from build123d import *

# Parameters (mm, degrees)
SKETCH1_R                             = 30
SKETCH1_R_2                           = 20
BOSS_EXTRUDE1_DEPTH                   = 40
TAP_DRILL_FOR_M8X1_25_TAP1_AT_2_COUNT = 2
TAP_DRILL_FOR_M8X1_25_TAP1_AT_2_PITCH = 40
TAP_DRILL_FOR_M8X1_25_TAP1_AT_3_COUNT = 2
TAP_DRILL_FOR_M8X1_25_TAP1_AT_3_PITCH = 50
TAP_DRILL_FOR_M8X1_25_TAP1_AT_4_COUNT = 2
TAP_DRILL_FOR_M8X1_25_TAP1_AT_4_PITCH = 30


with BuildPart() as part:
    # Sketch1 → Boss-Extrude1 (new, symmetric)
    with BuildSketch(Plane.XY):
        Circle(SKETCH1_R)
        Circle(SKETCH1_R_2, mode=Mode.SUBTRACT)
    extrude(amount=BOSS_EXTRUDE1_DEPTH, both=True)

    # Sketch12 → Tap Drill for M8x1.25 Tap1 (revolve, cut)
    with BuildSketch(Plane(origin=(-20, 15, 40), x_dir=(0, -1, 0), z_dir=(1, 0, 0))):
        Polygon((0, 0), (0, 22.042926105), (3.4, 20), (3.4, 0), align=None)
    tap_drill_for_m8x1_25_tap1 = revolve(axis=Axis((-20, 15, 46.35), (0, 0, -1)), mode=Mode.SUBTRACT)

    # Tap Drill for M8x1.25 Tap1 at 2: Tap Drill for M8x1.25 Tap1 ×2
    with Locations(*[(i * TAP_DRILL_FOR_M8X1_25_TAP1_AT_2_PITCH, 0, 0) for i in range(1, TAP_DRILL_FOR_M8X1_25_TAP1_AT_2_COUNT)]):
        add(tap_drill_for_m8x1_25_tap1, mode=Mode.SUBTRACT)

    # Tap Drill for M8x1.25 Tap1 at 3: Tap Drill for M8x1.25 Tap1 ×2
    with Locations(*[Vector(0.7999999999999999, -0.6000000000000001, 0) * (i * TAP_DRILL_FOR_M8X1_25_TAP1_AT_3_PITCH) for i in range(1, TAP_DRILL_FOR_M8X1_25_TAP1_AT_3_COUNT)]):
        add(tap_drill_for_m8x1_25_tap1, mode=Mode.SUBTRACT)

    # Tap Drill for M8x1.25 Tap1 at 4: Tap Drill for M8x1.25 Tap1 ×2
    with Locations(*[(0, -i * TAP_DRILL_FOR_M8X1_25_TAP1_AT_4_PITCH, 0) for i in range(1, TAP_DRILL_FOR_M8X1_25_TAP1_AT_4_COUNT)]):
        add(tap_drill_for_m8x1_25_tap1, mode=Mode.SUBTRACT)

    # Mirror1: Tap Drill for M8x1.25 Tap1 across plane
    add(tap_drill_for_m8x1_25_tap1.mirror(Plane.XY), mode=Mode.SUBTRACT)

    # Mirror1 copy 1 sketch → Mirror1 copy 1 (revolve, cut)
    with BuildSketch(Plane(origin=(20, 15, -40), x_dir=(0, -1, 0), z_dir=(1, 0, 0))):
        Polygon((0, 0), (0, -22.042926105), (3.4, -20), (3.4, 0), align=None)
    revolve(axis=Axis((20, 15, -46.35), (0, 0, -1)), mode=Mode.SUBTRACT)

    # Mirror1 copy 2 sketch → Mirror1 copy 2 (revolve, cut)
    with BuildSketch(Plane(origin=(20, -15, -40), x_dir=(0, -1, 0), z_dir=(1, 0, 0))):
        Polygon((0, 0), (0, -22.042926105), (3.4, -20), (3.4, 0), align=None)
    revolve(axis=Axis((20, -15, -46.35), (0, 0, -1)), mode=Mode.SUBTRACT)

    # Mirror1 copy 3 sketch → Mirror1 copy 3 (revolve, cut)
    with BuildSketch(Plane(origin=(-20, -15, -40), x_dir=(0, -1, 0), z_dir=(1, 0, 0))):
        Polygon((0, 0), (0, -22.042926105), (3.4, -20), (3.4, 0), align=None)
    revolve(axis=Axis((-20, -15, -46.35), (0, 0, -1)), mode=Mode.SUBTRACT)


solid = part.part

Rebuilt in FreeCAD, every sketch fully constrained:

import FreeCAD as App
import Part
import Sketcher
from FreeCAD import Vector
Q = App.Units.Quantity

doc = App.newDocument("Part")
body = doc.addObject("PartDesign::Body", "Body")

# Sketch on XY plane
sketch1 = body.newObject("Sketcher::SketchObject", "Sketch")
sketch1.AttachmentSupport = (doc.getObject("XY_Plane"), [""])
sketch1.MapMode = "FlatFace"
sketch1.addGeometry([
    Part.Circle(Vector(0, 0, 0), Vector(0, 0, 1), 30),
    Part.Circle(Vector(0, 0, 0), Vector(0, 0, 1), 20),
], False)
sketch1.addConstraint([
    Sketcher.Constraint("Coincident", 0, 3, -1, 1),
    Sketcher.Constraint("Coincident", 1, 3, -1, 1),
    Sketcher.Constraint("Diameter", 0, Q("60 mm")),
    Sketcher.Constraint("Diameter", 1, Q("40 mm")),
])
pad1 = body.newObject("PartDesign::Pad", "Pad")
pad1.Profile = sketch1
pad1.Length = 80
pad1.Midplane = True

# Sketch on YZ plane
sketch2 = body.newObject("Sketcher::SketchObject", "Sketch001")
sketch2.AttachmentSupport = (doc.getObject("YZ_Plane"), [""])
sketch2.MapMode = "FlatFace"
sketch2.AttachmentOffset = App.Placement(Vector(0, 0, -20), App.Rotation())
sketch2.addGeometry([
    Part.LineSegment(Vector(15, 18, 0), Vector(15, 40, 0)),
    Part.LineSegment(Vector(15, 40, 0), Vector(11.6, 40, 0)),
    Part.LineSegment(Vector(11.6, 40, 0), Vector(11.6, 20, 0)),
    Part.LineSegment(Vector(11.6, 20, 0), Vector(15, 18, 0)),
], False)
sketch2.addGeometry(Part.LineSegment(Vector(15, 40, 0), Vector(15, 18, 0)), True)  # axis
sketch2.addConstraint([
    Sketcher.Constraint("Coincident", 0, 2, 1, 1),
    Sketcher.Constraint("Coincident", 1, 2, 2, 1),
    Sketcher.Constraint("Coincident", 2, 2, 3, 1),
    Sketcher.Constraint("Coincident", 3, 2, 0, 1),
    Sketcher.Constraint("Vertical", 0),
    Sketcher.Constraint("Horizontal", 1),
    Sketcher.Constraint("Vertical", 2),
    Sketcher.Constraint("Vertical", 4),
    Sketcher.Constraint("Coincident", 4, 1, 0, 2),
    Sketcher.Constraint("Equal", 0, 4),
    Sketcher.Constraint("DistanceY", 2, 2, 2, 1, Q("20 mm")),
    Sketcher.Constraint("Angle", 3, Q("-31 deg")),
    Sketcher.Constraint("DistanceX", 1, 2, 1, 1, Q("3.4 mm")),
    Sketcher.Constraint("DistanceX", -1, 1, 0, 2, Q("15 mm")),
    Sketcher.Constraint("DistanceY", -1, 1, 0, 2, Q("40 mm")),
])
groove = body.newObject("PartDesign::Groove", "Groove")
groove.Profile = sketch2
groove.ReferenceAxis = (sketch2, ["Axis0"])
groove.Angle = 360
doc.recompute()

linearpattern = body.newObject("PartDesign::LinearPattern", "LinearPattern")
linearpattern.Originals = [groove]
linearpattern.Direction = (doc.getObject("X_Axis"), [""])
linearpattern.Mode = "offset"
linearpattern.Offset = 40
linearpattern.Occurrences = 2
body.Tip = linearpattern
doc.recompute()

datumline = body.newObject("PartDesign::Line", "DatumLine")
datumline.Placement = App.Placement(Vector(0, 0, 0), App.Rotation(Vector(0, 0, 1), Vector(0.8, -0.6, 0)))
linearpattern2 = body.newObject("PartDesign::LinearPattern", "LinearPattern001")
linearpattern2.Originals = [groove]
linearpattern2.Direction = (datumline, [""])
linearpattern2.Mode = "offset"
linearpattern2.Offset = 50
linearpattern2.Occurrences = 2
body.Tip = linearpattern2
doc.recompute()

linearpattern3 = body.newObject("PartDesign::LinearPattern", "LinearPattern002")
linearpattern3.Originals = [groove]
linearpattern3.Direction = (doc.getObject("Y_Axis"), [""])
linearpattern3.Mode = "offset"
linearpattern3.Offset = 30
linearpattern3.Occurrences = 2
linearpattern3.Reversed = True
body.Tip = linearpattern3
doc.recompute()

mirrored = body.newObject("PartDesign::Mirrored", "Mirrored")
mirrored.Originals = [groove]
mirrored.MirrorPlane = (doc.getObject("XY_Plane"), [""])
body.Tip = mirrored

# Sketch on YZ plane
sketch3 = body.newObject("Sketcher::SketchObject", "Sketch002")
sketch3.AttachmentSupport = (doc.getObject("YZ_Plane"), [""])
sketch3.MapMode = "FlatFace"
sketch3.AttachmentOffset = App.Placement(Vector(0, 0, 20), App.Rotation())
sketch3.addGeometry([
    Part.LineSegment(Vector(15, -40, 0), Vector(15, -18, 0)),
    Part.LineSegment(Vector(15, -18, 0), Vector(11.6, -20, 0)),
    Part.LineSegment(Vector(11.6, -20, 0), Vector(11.6, -40, 0)),
    Part.LineSegment(Vector(11.6, -40, 0), Vector(15, -40, 0)),
], False)
sketch3.addGeometry(Part.LineSegment(Vector(15, -18, 0), Vector(15, -40, 0)), True)  # axis
sketch3.addConstraint([
    Sketcher.Constraint("Coincident", 0, 2, 1, 1),
    Sketcher.Constraint("Coincident", 1, 2, 2, 1),
    Sketcher.Constraint("Coincident", 2, 2, 3, 1),
    Sketcher.Constraint("Coincident", 3, 2, 0, 1),
    Sketcher.Constraint("Vertical", 0),
    Sketcher.Constraint("Vertical", 2),
    Sketcher.Constraint("Horizontal", 3),
    Sketcher.Constraint("Vertical", 4),
    Sketcher.Constraint("Coincident", 4, 1, 0, 2),
    Sketcher.Constraint("Horizontal", 2, 2, 4, 2),
    Sketcher.Constraint("DistanceY", 2, 2, 2, 1, Q("20 mm")),
    Sketcher.Constraint("Angle", 1, Q("-149 deg")),
    Sketcher.Constraint("DistanceX", 3, 1, 3, 2, Q("3.4 mm")),
    Sketcher.Constraint("DistanceX", -1, 1, 0, 2, Q("15 mm")),
    Sketcher.Constraint("DistanceY", 1, 2, -1, 1, Q("20 mm")),
])
groove2 = body.newObject("PartDesign::Groove", "Groove001")
groove2.Profile = sketch3
groove2.ReferenceAxis = (sketch3, ["Axis0"])
groove2.Angle = 360

# Sketch on YZ plane
sketch4 = body.newObject("Sketcher::SketchObject", "Sketch003")
sketch4.AttachmentSupport = (doc.getObject("YZ_Plane"), [""])
sketch4.MapMode = "FlatFace"
sketch4.AttachmentOffset = App.Placement(Vector(0, 0, 20), App.Rotation())
sketch4.addGeometry([
    Part.LineSegment(Vector(-15, -40, 0), Vector(-15, -18, 0)),
    Part.LineSegment(Vector(-15, -18, 0), Vector(-18.4, -20, 0)),
    Part.LineSegment(Vector(-18.4, -20, 0), Vector(-18.4, -40, 0)),
    Part.LineSegment(Vector(-18.4, -40, 0), Vector(-15, -40, 0)),
], False)
sketch4.addGeometry(Part.LineSegment(Vector(-15, -18, 0), Vector(-15, -40, 0)), True)  # axis
sketch4.addConstraint([
    Sketcher.Constraint("Coincident", 0, 2, 1, 1),
    Sketcher.Constraint("Coincident", 1, 2, 2, 1),
    Sketcher.Constraint("Coincident", 2, 2, 3, 1),
    Sketcher.Constraint("Coincident", 3, 2, 0, 1),
    Sketcher.Constraint("Vertical", 0),
    Sketcher.Constraint("Vertical", 2),
    Sketcher.Constraint("Horizontal", 3),
    Sketcher.Constraint("Vertical", 4),
    Sketcher.Constraint("Coincident", 4, 1, 0, 2),
    Sketcher.Constraint("Horizontal", 2, 2, 4, 2),
    Sketcher.Constraint("DistanceY", 2, 2, 2, 1, Q("20 mm")),
    Sketcher.Constraint("Angle", 1, Q("-149 deg")),
    Sketcher.Constraint("DistanceX", 3, 1, 3, 2, Q("3.4 mm")),
    Sketcher.Constraint("DistanceX", 0, 2, -1, 1, Q("15 mm")),
    Sketcher.Constraint("DistanceY", 1, 2, -1, 1, Q("20 mm")),
])
groove3 = body.newObject("PartDesign::Groove", "Groove002")
groove3.Profile = sketch4
groove3.ReferenceAxis = (sketch4, ["Axis0"])
groove3.Angle = 360

# Sketch on YZ plane
sketch5 = body.newObject("Sketcher::SketchObject", "Sketch004")
sketch5.AttachmentSupport = (doc.getObject("YZ_Plane"), [""])
sketch5.MapMode = "FlatFace"
sketch5.AttachmentOffset = App.Placement(Vector(0, 0, -20), App.Rotation())
sketch5.addGeometry([
    Part.LineSegment(Vector(-15, -40, 0), Vector(-15, -18, 0)),
    Part.LineSegment(Vector(-15, -18, 0), Vector(-18.4, -20, 0)),
    Part.LineSegment(Vector(-18.4, -20, 0), Vector(-18.4, -40, 0)),
    Part.LineSegment(Vector(-18.4, -40, 0), Vector(-15, -40, 0)),
], False)
sketch5.addGeometry(Part.LineSegment(Vector(-15, -18, 0), Vector(-15, -40, 0)), True)  # axis
sketch5.addConstraint([
    Sketcher.Constraint("Coincident", 0, 2, 1, 1),
    Sketcher.Constraint("Coincident", 1, 2, 2, 1),
    Sketcher.Constraint("Coincident", 2, 2, 3, 1),
    Sketcher.Constraint("Coincident", 3, 2, 0, 1),
    Sketcher.Constraint("Vertical", 0),
    Sketcher.Constraint("Vertical", 2),
    Sketcher.Constraint("Horizontal", 3),
    Sketcher.Constraint("Vertical", 4),
    Sketcher.Constraint("Coincident", 4, 1, 0, 2),
    Sketcher.Constraint("Horizontal", 2, 2, 4, 2),
    Sketcher.Constraint("DistanceY", 2, 2, 2, 1, Q("20 mm")),
    Sketcher.Constraint("Angle", 1, Q("-149 deg")),
    Sketcher.Constraint("DistanceX", 3, 1, 3, 2, Q("3.4 mm")),
    Sketcher.Constraint("DistanceX", 0, 2, -1, 1, Q("15 mm")),
    Sketcher.Constraint("DistanceY", 1, 2, -1, 1, Q("20 mm")),
])
groove4 = body.newObject("PartDesign::Groove", "Groove003")
groove4.Profile = sketch5
groove4.ReferenceAxis = (sketch5, ["Axis0"])
groove4.Angle = 360

doc.recompute()
